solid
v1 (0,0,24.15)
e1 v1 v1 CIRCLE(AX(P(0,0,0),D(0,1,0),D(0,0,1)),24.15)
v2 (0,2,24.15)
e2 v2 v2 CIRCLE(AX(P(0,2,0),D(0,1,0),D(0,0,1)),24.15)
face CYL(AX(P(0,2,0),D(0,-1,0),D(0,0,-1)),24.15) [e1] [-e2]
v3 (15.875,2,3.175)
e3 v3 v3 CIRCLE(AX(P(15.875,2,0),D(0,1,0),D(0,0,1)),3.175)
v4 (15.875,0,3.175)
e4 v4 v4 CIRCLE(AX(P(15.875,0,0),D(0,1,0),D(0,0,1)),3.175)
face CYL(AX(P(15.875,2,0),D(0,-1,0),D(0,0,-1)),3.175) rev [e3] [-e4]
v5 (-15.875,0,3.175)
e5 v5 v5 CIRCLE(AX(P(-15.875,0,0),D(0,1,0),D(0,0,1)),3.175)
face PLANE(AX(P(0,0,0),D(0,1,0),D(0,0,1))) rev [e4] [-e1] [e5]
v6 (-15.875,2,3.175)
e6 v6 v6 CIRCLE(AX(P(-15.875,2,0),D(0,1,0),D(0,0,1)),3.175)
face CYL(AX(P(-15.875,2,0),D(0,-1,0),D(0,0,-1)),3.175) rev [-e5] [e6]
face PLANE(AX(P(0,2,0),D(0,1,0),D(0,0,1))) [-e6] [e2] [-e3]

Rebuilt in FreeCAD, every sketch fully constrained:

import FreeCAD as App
import Part
import Sketcher

doc = App.newDocument("Part")
body = doc.addObject("PartDesign::Body", "Body")

sketch1 = body.newObject("Sketcher::SketchObject", "Sketch")
sketch1.AttachmentSupport = (doc.getObject("XZ_Plane"), [""])
sketch1.MapMode = "FlatFace"
sketch1.addGeometry(Part.Circle(App.Vector(0, 0, 0), App.Vector(0, 0, 1), 24.15), False)
sketch1.addGeometry(Part.Circle(App.Vector(-15.875, 0, 0), App.Vector(0, 0, 1), 3.175), False)
sketch1.addGeometry(Part.Circle(App.Vector(15.875, 0, 0), App.Vector(0, 0, 1), 3.175), False)
sketch1.addConstraint(Sketcher.Constraint("Coincident", 0, 3, -1, 1))
sketch1.addConstraint(Sketcher.Constraint("Equal", 1, 2))
sketch1.addConstraint(Sketcher.Constraint("Symmetric", 1, 3, 2, 3, -1, 1))
sketch1.addConstraint(Sketcher.Constraint("PointOnObject", 1, 3, -1))
sketch1.addConstraint(Sketcher.Constraint("Diameter", 0, 48.3))
sketch1.addConstraint(Sketcher.Constraint("Diameter", 1, 6.35))
sketch1.addConstraint(Sketcher.Constraint("DistanceX", 1, 3, 2, 3, 31.75))
pad1 = body.newObject("PartDesign::Pad", "Pad")
pad1.Profile = sketch1
pad1.Length = 2
pad1.Reversed = True

doc.recompute()
